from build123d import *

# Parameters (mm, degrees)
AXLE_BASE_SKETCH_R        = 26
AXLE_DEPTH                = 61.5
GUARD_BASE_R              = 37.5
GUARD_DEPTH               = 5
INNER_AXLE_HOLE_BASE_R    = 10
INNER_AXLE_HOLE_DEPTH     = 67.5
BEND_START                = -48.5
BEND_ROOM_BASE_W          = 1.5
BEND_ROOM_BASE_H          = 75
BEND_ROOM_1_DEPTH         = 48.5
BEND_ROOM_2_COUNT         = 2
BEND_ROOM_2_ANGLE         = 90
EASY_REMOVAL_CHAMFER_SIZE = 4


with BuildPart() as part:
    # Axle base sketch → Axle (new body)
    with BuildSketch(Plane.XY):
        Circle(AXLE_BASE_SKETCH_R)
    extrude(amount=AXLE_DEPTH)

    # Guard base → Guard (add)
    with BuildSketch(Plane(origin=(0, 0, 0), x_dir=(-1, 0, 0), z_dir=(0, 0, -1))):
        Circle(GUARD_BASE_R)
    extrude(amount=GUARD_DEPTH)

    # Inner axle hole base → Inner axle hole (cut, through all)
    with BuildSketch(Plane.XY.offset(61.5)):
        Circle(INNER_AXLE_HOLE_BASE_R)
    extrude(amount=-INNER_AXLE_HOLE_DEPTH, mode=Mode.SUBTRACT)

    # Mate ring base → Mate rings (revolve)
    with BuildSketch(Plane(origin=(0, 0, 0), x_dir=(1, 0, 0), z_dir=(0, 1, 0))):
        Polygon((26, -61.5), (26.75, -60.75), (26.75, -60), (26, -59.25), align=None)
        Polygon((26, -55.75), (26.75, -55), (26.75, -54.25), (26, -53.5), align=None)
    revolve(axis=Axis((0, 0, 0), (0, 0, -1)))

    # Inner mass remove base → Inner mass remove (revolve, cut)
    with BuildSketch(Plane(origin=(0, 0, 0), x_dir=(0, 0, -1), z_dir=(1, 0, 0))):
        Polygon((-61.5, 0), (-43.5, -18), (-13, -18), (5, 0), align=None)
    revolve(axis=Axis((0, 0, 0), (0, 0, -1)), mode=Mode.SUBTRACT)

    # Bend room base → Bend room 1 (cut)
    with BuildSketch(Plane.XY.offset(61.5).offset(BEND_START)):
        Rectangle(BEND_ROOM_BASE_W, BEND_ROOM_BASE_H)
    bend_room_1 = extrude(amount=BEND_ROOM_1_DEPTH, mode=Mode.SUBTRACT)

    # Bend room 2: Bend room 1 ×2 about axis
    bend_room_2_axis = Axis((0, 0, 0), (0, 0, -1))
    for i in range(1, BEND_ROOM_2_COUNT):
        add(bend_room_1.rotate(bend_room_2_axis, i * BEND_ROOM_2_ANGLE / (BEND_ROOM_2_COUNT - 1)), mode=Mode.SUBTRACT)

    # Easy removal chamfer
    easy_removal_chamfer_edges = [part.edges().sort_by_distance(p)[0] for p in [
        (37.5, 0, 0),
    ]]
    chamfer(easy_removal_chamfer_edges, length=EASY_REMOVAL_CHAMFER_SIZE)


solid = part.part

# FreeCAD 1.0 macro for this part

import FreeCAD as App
import Part
import Sketcher


def edges_at(feature, points):
    """Names of the edges that pass closest to the given points."""
    edges = feature.Shape.Edges
    near = lambda p: min(range(len(edges)), key=lambda i: edges[i].distToShape(Part.Vertex(*p))[0])
    return sorted({f"Edge{near(p) + 1}" for p in points})

doc = App.newDocument("Part")
body = doc.addObject("PartDesign::Body", "Body")

# Sketch on XY plane
sketch1 = body.newObject("Sketcher::SketchObject", "Sketch")
sketch1.AttachmentSupport = (doc.getObject("XY_Plane"), [""])
sketch1.MapMode = "FlatFace"
sketch1.addGeometry(Part.Circle(App.Vector(0, 0, 0), App.Vector(0, 0, 1), 26), False)
sketch1.addConstraint([
    Sketcher.Constraint("Coincident", 0, 3, -1, 1),
    Sketcher.Constraint("Diameter", 0, 52.0),
])
pad1 = body.newObject("PartDesign::Pad", "Pad")
pad1.Profile = sketch1
pad1.Length = 61.5

# Sketch on XY plane
sketch2 = body.newObject("Sketcher::SketchObject", "Sketch001")
sketch2.AttachmentSupport = (doc.getObject("XY_Plane"), [""])
sketch2.MapMode = "FlatFace"
sketch2.addGeometry(Part.Circle(App.Vector(0, 0, 0), App.Vector(0, 0, 1), 38), False)
sketch2.addConstraint([
    Sketcher.Constraint("Coincident", 0, 3, -1, 1),
    Sketcher.Constraint("Diameter", 0, 75.0),
])
pad2 = body.newObject("PartDesign::Pad", "Pad001")
pad2.Profile = sketch2
pad2.Length = 5
pad2.Reversed = True

# Sketch on XY plane
sketch3 = body.newObject("Sketcher::SketchObject", "Sketch002")
sketch3.AttachmentSupport = (doc.getObject("XY_Plane"), [""])
sketch3.MapMode = "FlatFace"
sketch3.AttachmentOffset = App.Placement(App.Vector(0, 0, 61.5), App.Rotation())
sketch3.addGeometry(Part.Circle(App.Vector(0, 0, 0), App.Vector(0, 0, 1), 10), False)
sketch3.addConstraint([
    Sketcher.Constraint("Coincident", 0, 3, -1, 1),
    Sketcher.Constraint("Diameter", 0, 20.0),
])
pocket1 = body.newObject("PartDesign::Pocket", "Pocket")
pocket1.Profile = sketch3
pocket1.Type = "ThroughAll"

# Sketch on XZ plane
sketch4 = body.newObject("Sketcher::SketchObject", "Sketch003")
sketch4.AttachmentSupport = (doc.getObject("XZ_Plane"), [""])
sketch4.MapMode = "FlatFace"
sketch4.addGeometry([
    Part.LineSegment(App.Vector(26, 61.5, 0), App.Vector(26.8, 60.8, 0)),  # 0
    Part.LineSegment(App.Vector(26.8, 60.8, 0), App.Vector(26.8, 60, 0)),  # 1
    Part.LineSegment(App.Vector(26.8, 60, 0), App.Vector(26, 59.2, 0)),  # 2
    Part.LineSegment(App.Vector(26, 59.2, 0), App.Vector(26, 61.5, 0)),  # 3
    Part.LineSegment(App.Vector(26, 55.8, 0), App.Vector(26.8, 55, 0)),  # 4
    Part.LineSegment(App.Vector(26.8, 55, 0), App.Vector(26.8, 54.2, 0)),  # 5
    Part.LineSegment(App.Vector(26.8, 54.2, 0), App.Vector(26, 53.5, 0)),  # 6
    Part.LineSegment(App.Vector(26, 53.5, 0), App.Vector(26, 55.8, 0)),  # 7
], False)
sketch4.addConstraint([
    Sketcher.Constraint("Coincident", 0, 2, 1, 1),
    Sketcher.Constraint("Coincident", 1, 2, 2, 1),
    Sketcher.Constraint("Coincident", 2, 2, 3, 1),
    Sketcher.Constraint("Coincident", 3, 2, 0, 1),
    Sketcher.Constraint("Coincident", 4, 2, 5, 1),
    Sketcher.Constraint("Coincident", 5, 2, 6, 1),
    Sketcher.Constraint("Coincident", 6, 2, 7, 1),
    Sketcher.Constraint("Coincident", 7, 2, 4, 1),
    Sketcher.Constraint("Vertical", 1),
    Sketcher.Constraint("Vertical", 3),
    Sketcher.Constraint("Vertical", 5),
    Sketcher.Constraint("Vertical", 7),
    Sketcher.Constraint("Perpendicular", 0, 2),
    Sketcher.Constraint("Perpendicular", 2, 4),
    Sketcher.Constraint("Perpendicular", 4, 6),
    Sketcher.Constraint("Vertical", 1, 2, 4, 2),
    Sketcher.Constraint("Vertical", 3, 2, 6, 2),
    Sketcher.Constraint("Equal", 1, 5),
    Sketcher.Constraint("Equal", 0, 2),
    Sketcher.Constraint("DistanceY", -1, 1, 1, 2, 60.0),
    Sketcher.Constraint("DistanceX", -1, 1, 2, 2, 26.0),
    Sketcher.Constraint("DistanceY", -1, 1, 4, 2, 55.0),
    Sketcher.Constraint("DistanceY", 5, 2, 2, 2, 5.0),
    Sketcher.Constraint("DistanceY", 1, 2, 1, 1, 0.75),
])
revolution = body.newObject("PartDesign::Revolution", "Revolution")
revolution.Profile = sketch4
revolution.ReferenceAxis = (sketch4, ["V_Axis"])
revolution.Angle = 360

# Sketch on YZ plane
sketch5 = body.newObject("Sketcher::SketchObject", "Sketch004")
sketch5.AttachmentSupport = (doc.getObject("YZ_Plane"), [""])
sketch5.MapMode = "FlatFace"
sketch5.addGeometry([
    Part.LineSegment(App.Vector(0, 62, 0), App.Vector(-18, 44, 0)),
    Part.LineSegment(App.Vector(-18, 44, 0), App.Vector(-18, 13, 0)),
    Part.LineSegment(App.Vector(-18, 13, 0), App.Vector(0, -5, 0)),
    Part.LineSegment(App.Vector(0, -5, 0), App.Vector(0, 62, 0)),
], False)
sketch5.addConstraint([
    Sketcher.Constraint("Coincident", 0, 2, 1, 1),
    Sketcher.Constraint("Coincident", 1, 2, 2, 1),
    Sketcher.Constraint("Coincident", 2, 2, 3, 1),
    Sketcher.Constraint("Coincident", 3, 2, 0, 1),
    Sketcher.Constraint("Vertical", 1),
    Sketcher.Constraint("Vertical", 3),
    Sketcher.Constraint("PointOnObject", 2, 2, -2),
    Sketcher.Constraint("Perpendicular", 0, 2),
    Sketcher.Constraint("Equal", 0, 2),
    Sketcher.Constraint("DistanceY", 1, 2, 1, 1, 30.5),
    Sketcher.Constraint("DistanceY", 3, 1, 3, 2, 66.5),
    Sketcher.Constraint("DistanceY", -1, 1, 1, 2, 13.0),
])
groove = body.newObject("PartDesign::Groove", "Groove")
groove.Profile = sketch5
groove.ReferenceAxis = (sketch5, ["V_Axis"])
groove.Angle = 360

# Sketch on XY plane
sketch6 = body.newObject("Sketcher::SketchObject", "Sketch005")
sketch6.AttachmentSupport = (doc.getObject("XY_Plane"), [""])
sketch6.MapMode = "FlatFace"
sketch6.AttachmentOffset = App.Placement(App.Vector(0, 0, 13), App.Rotation())
sketch6.addGeometry([
    Part.LineSegment(App.Vector(-0.8, 37.5, 0), App.Vector(-0.8, -37.5, 0)),
    Part.LineSegment(App.Vector(-0.8, -37.5, 0), App.Vector(0.8, -37.5, 0)),
    Part.LineSegment(App.Vector(0.8, -37.5, 0), App.Vector(0.8, 37.5, 0)),
    Part.LineSegment(App.Vector(0.8, 37.5, 0), App.Vector(-0.8, 37.5, 0)),
], False)
sketch6.addConstraint([
    Sketcher.Constraint("Coincident", 0, 2, 1, 1),
    Sketcher.Constraint("Coincident", 1, 2, 2, 1),
    Sketcher.Constraint("Coincident", 2, 2, 3, 1),
    Sketcher.Constraint("Coincident", 3, 2, 0, 1),
    Sketcher.Constraint("Vertical", 0),
    Sketcher.Constraint("Horizontal", 1),
    Sketcher.Constraint("Vertical", 2),
    Sketcher.Constraint("Horizontal", 3),
    Sketcher.Constraint("Symmetric", 0, 2, 2, 2, -1, 1),
    Sketcher.Constraint("DistanceY", 0, 2, 0, 1, 75.0),
    Sketcher.Constraint("DistanceX", 1, 1, 1, 2, 1.5),
])
pocket2 = body.newObject("PartDesign::Pocket", "Pocket001")
pocket2.Profile = sketch6
pocket2.Length = 48.5
pocket2.Reversed = True
doc.recompute()

polarpattern = body.newObject("PartDesign::PolarPattern", "PolarPattern")
polarpattern.Originals = [pocket2]
polarpattern.Axis = (doc.getObject("Z_Axis"), [""])
polarpattern.Angle = 90
polarpattern.Occurrences = 2
polarpattern.Reversed = True
body.Tip = polarpattern
doc.recompute()

chamfer = body.newObject("PartDesign::Chamfer", "Chamfer")
chamfer.Base = (polarpattern, edges_at(polarpattern, [(37.5, 0, 0)]))
chamfer.Size = 4

doc.recompute()
